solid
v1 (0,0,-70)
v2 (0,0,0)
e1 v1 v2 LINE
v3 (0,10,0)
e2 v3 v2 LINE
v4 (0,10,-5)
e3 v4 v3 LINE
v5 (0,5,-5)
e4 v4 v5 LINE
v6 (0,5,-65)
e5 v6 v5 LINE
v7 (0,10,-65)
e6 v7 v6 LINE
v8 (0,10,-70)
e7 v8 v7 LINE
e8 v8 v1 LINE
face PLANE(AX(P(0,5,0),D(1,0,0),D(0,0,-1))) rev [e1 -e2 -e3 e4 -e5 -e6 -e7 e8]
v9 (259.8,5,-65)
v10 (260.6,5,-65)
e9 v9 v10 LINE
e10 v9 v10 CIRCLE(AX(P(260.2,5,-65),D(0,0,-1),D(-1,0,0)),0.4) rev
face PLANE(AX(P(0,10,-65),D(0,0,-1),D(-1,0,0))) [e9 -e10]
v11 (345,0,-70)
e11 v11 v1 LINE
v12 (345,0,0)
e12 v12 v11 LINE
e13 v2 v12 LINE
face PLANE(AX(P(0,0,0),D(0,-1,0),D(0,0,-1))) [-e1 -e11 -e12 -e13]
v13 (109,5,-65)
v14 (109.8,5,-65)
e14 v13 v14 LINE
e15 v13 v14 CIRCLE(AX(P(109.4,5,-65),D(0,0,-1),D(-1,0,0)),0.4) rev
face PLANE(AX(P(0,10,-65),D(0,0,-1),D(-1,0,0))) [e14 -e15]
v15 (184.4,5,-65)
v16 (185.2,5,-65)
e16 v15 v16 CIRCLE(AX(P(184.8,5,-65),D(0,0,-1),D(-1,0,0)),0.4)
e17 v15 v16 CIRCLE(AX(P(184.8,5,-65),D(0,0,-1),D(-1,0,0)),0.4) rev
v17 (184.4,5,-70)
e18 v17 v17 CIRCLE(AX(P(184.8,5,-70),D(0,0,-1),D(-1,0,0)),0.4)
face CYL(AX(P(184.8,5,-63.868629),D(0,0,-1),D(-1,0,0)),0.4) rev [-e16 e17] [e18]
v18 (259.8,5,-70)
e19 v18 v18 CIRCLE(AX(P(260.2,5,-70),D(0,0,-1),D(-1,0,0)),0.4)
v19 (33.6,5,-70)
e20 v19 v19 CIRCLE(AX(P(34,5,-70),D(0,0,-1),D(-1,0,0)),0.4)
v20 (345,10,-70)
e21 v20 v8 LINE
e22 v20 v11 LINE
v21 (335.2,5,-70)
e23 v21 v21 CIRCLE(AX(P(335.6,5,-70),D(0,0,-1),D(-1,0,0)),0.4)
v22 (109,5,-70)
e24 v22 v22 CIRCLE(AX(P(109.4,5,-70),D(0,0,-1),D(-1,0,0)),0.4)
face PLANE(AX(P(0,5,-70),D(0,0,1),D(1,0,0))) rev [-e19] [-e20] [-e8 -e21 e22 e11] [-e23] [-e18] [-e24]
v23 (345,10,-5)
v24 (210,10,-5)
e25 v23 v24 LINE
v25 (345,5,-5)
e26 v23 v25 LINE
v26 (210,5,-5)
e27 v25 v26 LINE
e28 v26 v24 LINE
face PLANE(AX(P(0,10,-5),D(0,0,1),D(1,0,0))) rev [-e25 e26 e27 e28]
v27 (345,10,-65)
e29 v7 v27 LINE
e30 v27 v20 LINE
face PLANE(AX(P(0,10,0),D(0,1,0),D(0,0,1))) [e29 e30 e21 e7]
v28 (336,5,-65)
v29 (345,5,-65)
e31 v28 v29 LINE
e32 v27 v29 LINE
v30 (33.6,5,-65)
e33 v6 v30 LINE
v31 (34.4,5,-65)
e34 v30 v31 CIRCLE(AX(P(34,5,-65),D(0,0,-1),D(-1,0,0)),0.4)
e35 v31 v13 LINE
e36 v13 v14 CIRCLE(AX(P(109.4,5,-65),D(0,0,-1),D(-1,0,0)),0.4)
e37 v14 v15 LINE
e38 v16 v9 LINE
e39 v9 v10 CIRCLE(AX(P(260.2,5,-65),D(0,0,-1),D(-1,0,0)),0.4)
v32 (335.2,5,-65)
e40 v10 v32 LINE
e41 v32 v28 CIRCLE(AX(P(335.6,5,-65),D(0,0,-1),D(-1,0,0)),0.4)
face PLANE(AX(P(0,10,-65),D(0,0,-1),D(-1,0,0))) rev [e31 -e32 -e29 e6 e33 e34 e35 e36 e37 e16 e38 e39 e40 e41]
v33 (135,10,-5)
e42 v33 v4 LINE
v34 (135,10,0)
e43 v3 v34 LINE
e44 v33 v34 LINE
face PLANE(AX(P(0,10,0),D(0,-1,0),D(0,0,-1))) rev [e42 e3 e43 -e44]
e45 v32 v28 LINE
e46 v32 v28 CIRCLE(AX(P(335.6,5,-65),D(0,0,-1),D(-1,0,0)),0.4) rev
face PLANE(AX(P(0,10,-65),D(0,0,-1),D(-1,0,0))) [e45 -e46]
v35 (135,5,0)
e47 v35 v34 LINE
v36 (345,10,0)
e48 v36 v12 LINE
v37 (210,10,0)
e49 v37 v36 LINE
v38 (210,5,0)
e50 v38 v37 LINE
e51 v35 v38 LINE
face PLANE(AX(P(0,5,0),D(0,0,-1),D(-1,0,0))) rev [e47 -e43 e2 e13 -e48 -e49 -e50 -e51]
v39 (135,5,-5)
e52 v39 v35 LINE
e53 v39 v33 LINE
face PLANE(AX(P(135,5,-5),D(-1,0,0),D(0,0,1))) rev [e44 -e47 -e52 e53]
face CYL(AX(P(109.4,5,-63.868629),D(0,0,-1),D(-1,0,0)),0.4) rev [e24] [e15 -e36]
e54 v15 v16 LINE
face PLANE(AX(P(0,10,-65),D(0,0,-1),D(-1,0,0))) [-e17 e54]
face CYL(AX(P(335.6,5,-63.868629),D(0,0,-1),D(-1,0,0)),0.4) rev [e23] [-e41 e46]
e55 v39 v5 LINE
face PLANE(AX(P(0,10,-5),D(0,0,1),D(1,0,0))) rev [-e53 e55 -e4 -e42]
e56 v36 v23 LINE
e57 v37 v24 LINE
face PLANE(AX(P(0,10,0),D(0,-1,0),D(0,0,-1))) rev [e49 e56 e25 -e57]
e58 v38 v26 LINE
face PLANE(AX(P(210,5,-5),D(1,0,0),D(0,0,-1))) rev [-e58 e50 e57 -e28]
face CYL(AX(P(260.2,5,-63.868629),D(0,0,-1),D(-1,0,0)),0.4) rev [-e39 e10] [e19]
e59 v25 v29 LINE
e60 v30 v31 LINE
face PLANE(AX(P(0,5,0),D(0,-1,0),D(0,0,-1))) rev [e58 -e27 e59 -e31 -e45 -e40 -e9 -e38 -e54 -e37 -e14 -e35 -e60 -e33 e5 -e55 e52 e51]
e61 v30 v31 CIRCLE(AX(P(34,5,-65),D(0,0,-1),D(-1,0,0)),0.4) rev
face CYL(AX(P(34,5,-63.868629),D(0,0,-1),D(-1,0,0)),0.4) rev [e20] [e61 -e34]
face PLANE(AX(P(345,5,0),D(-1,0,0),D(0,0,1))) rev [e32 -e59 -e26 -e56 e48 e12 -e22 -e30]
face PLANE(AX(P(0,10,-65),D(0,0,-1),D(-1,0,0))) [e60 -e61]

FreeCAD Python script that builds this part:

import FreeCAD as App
import Part
import Sketcher

doc = App.newDocument("Part")
body = doc.addObject("PartDesign::Body", "Body")

sketch1 = body.newObject("Sketcher::SketchObject", "Sketch")
sketch1.AttachmentSupport = (doc.getObject("XZ_Plane"), [""])
sketch1.MapMode = "FlatFace"
sketch1.addGeometry([
    Part.LineSegment(App.Vector(0, -70, 0), App.Vector(0, 0, 0)),
    Part.LineSegment(App.Vector(0, 0, 0), App.Vector(345, 0, 0)),
    Part.LineSegment(App.Vector(345, 0, 0), App.Vector(345, -70, 0)),
    Part.LineSegment(App.Vector(345, -70, 0), App.Vector(0, -70, 0)),
], False)
sketch1.addConstraint([
    Sketcher.Constraint("Coincident", 0, 2, 1, 1),
    Sketcher.Constraint("Coincident", 1, 2, 2, 1),
    Sketcher.Constraint("Coincident", 2, 2, 3, 1),
    Sketcher.Constraint("Coincident", 3, 2, 0, 1),
    Sketcher.Constraint("Vertical", 0),
    Sketcher.Constraint("Horizontal", 1),
    Sketcher.Constraint("Vertical", 2),
    Sketcher.Constraint("Horizontal", 3),
    Sketcher.Constraint("Coincident", 0, 2, -1, 1),
    Sketcher.Constraint("DistanceX", 1, 1, 1, 2, 345.0),
    Sketcher.Constraint("DistanceY", 0, 1, 0, 2, 70.0),
])
pad1 = body.newObject("PartDesign::Pad", "Pad")
pad1.Profile = sketch1
pad1.Length = 5
pad1.Reversed = True

sketch2 = body.newObject("Sketcher::SketchObject", "Sketch001")
sketch2.AttachmentSupport = (doc.getObject("XZ_Plane"), [""])
sketch2.MapMode = "FlatFace"
sketch2.AttachmentOffset = App.Placement(App.Vector(0, 0, -5), App.Rotation())
sketch2.addGeometry([
    Part.LineSegment(App.Vector(0, -70, 0), App.Vector(0, -65, 0)),
    Part.LineSegment(App.Vector(0, -65, 0), App.Vector(345, -65, 0)),
    Part.LineSegment(App.Vector(345, -65, 0), App.Vector(345, -70, 0)),
    Part.LineSegment(App.Vector(345, -70, 0), App.Vector(0, -70, 0)),
    Part.LineSegment(App.Vector(0, -5, 0), App.Vector(0, 0, 0)),
    Part.LineSegment(App.Vector(0, 0, 0), App.Vector(345, 0, 0)),
    Part.LineSegment(App.Vector(345, 0, 0), App.Vector(345, -5, 0)),
    Part.LineSegment(App.Vector(345, -5, 0), App.Vector(0, -5, 0)),
], False)
sketch2.addConstraint([
    Sketcher.Constraint("Coincident", 0, 2, 1, 1),
    Sketcher.Constraint("Coincident", 1, 2, 2, 1),
    Sketcher.Constraint("Coincident", 2, 2, 3, 1),
    Sketcher.Constraint("Coincident", 3, 2, 0, 1),
    Sketcher.Constraint("Coincident", 4, 2, 5, 1),
    Sketcher.Constraint("Coincident", 5, 2, 6, 1),
    Sketcher.Constraint("Coincident", 6, 2, 7, 1),
    Sketcher.Constraint("Coincident", 7, 2, 4, 1),
    Sketcher.Constraint("Vertical", 0),
    Sketcher.Constraint("Horizontal", 1),
    Sketcher.Constraint("Vertical", 2),
    Sketcher.Constraint("Horizontal", 3),
    Sketcher.Constraint("Vertical", 4),
    Sketcher.Constraint("Horizontal", 5),
    Sketcher.Constraint("Vertical", 6),
    Sketcher.Constraint("Horizontal", 7),
    Sketcher.Constraint("Coincident", 4, 2, -1, 1),
    Sketcher.Constraint("PointOnObject", 0, 2, -2),
    Sketcher.Constraint("Vertical", 2, 2, 5, 2),
    Sketcher.Constraint("Equal", 2, 4),
    Sketcher.Constraint("DistanceX", 1, 1, 1, 2, 345.0),
    Sketcher.Constraint("DistanceY", 0, 1, 0, 2, 5.0),
    Sketcher.Constraint("DistanceY", 0, 2, -1, 1, 65.0),
])
pad2 = body.newObject("PartDesign::Pad", "Pad001")
pad2.Profile = sketch2
pad2.Length = 5
pad2.Reversed = True

sketch3 = body.newObject("Sketcher::SketchObject", "Sketch002")
sketch3.AttachmentSupport = (doc.getObject("XZ_Plane"), [""])
sketch3.MapMode = "FlatFace"
sketch3.AttachmentOffset = App.Placement(App.Vector(0, 0, -10), App.Rotation())
sketch3.addGeometry([
    Part.LineSegment(App.Vector(135, -5, 0), App.Vector(135, 0, 0)),
    Part.LineSegment(App.Vector(135, 0, 0), App.Vector(210, 0, 0)),
    Part.LineSegment(App.Vector(210, 0, 0), App.Vector(210, -5, 0)),
    Part.LineSegment(App.Vector(210, -5, 0), App.Vector(135, -5, 0)),
], False)
sketch3.addConstraint([
    Sketcher.Constraint("Coincident", 0, 2, 1, 1),
    Sketcher.Constraint("Coincident", 1, 2, 2, 1),
    Sketcher.Constraint("Coincident", 2, 2, 3, 1),
    Sketcher.Constraint("Coincident", 3, 2, 0, 1),
    Sketcher.Constraint("Vertical", 0),
    Sketcher.Constraint("Horizontal", 1),
    Sketcher.Constraint("Vertical", 2),
    Sketcher.Constraint("Horizontal", 3),
    Sketcher.Constraint("PointOnObject", 0, 2, -1),
    Sketcher.Constraint("DistanceX", 1, 1, 1, 2, 75.0),
    Sketcher.Constraint("DistanceY", 0, 1, 0, 2, 5.0),
    Sketcher.Constraint("DistanceX", -1, 1, 0, 2, 135.0),
])
pocket1 = body.newObject("PartDesign::Pocket", "Pocket")
pocket1.Profile = sketch3
pocket1.Length = 5
pocket1.Reversed = True

sketch4 = body.newObject("Sketcher::SketchObject", "Sketch003")
sketch4.AttachmentSupport = (doc.getObject("XY_Plane"), [""])
sketch4.MapMode = "FlatFace"
sketch4.AttachmentOffset = App.Placement(App.Vector(0, 0, -70), App.Rotation())
sketch4.addGeometry([
    Part.Circle(App.Vector(335.6, 5, 0), App.Vector(0, 0, 1), 0.4),
    Part.Circle(App.Vector(260.2, 5, 0), App.Vector(0, 0, 1), 0.4),
    Part.Circle(App.Vector(184.8, 5, 0), App.Vector(0, 0, 1), 0.4),
    Part.Circle(App.Vector(109.4, 5, 0), App.Vector(0, 0, 1), 0.4),
    Part.Circle(App.Vector(34, 5, 0), App.Vector(0, 0, 1), 0.4),
], False)
sketch4.addConstraint([
    Sketcher.Constraint("Equal", 0, 1),
    Sketcher.Constraint("Equal", 1, 2),
    Sketcher.Constraint("Equal", 2, 3),
    Sketcher.Constraint("Equal", 3, 4),
    Sketcher.Constraint("Horizontal", 0, 3, 1, 3),
    Sketcher.Constraint("Horizontal", 1, 3, 2, 3),
    Sketcher.Constraint("Horizontal", 2, 3, 3, 3),
    Sketcher.Constraint("Horizontal", 3, 3, 4, 3),
    Sketcher.Constraint("Diameter", 0, 0.8),
    Sketcher.Constraint("DistanceY", -1, 1, 0, 3, 5.0),
    Sketcher.Constraint("DistanceX", -1, 1, 4, 3, 34.0),
    Sketcher.Constraint("DistanceX", -1, 1, 0, 3, 335.6),
    Sketcher.Constraint("DistanceX", -1, 1, 1, 3, 260.2),
    Sketcher.Constraint("DistanceX", -1, 1, 2, 3, 184.8),
    Sketcher.Constraint("DistanceX", -1, 1, 3, 3, 109.4),
])
pocket2 = body.newObject("PartDesign::Pocket", "Pocket001")
pocket2.Profile = sketch4
pocket2.Length = 5
pocket2.Reversed = True

doc.recompute()
